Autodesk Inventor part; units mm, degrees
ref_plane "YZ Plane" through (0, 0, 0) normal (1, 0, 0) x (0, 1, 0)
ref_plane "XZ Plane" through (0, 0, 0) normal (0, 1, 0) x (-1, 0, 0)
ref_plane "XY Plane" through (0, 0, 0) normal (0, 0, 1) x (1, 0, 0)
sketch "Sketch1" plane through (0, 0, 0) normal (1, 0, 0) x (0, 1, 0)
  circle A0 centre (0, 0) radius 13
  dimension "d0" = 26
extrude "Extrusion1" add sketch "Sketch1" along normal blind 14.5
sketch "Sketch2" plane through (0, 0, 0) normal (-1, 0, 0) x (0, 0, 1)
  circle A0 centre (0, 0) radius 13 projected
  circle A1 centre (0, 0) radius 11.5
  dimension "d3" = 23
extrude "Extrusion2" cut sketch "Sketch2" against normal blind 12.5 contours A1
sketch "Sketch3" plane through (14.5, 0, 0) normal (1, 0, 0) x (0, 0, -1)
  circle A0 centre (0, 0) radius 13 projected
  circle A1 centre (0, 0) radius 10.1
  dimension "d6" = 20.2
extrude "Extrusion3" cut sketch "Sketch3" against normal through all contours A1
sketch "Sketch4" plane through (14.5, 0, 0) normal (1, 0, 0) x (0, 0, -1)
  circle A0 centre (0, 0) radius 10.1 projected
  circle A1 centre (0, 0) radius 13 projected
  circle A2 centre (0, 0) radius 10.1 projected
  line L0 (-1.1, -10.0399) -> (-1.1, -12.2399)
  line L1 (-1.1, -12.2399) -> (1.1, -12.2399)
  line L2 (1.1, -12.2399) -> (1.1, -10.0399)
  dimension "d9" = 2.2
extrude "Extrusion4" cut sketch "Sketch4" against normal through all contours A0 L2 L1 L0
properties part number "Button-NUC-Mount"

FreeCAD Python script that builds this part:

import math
import FreeCAD as App
import Part
import Sketcher

doc = App.newDocument("Part")
body = doc.addObject("PartDesign::Body", "Body")

# Sketch on YZ plane
sketch1 = doc.addObject("Sketcher::SketchObject", "Sketch")
body.addObject(sketch1)
sketch1.AttachmentSupport = (doc.YZ_Plane, [""])
sketch1.MapMode = "FlatFace"
sketch1.addGeometry(Part.Circle(App.Vector(0, 0, 0), App.Vector(0, 0, 1), 13), False)
sketch1.addConstraint([
    Sketcher.Constraint("Coincident", 0, 3, -1, 1),
    Sketcher.Constraint("Diameter", 0, 26.0),
])
pad1 = doc.addObject("PartDesign::Pad", "Pad")
body.addObject(pad1)
pad1.Profile = sketch1
pad1.Length = 14.5

# Sketch on YZ plane
sketch2 = doc.addObject("Sketcher::SketchObject", "Sketch001")
body.addObject(sketch2)
sketch2.AttachmentSupport = (doc.YZ_Plane, [""])
sketch2.MapMode = "FlatFace"
sketch2.addGeometry(Part.Circle(App.Vector(0, 0, 0), App.Vector(0, 0, 1), 12), False)
sketch2.addConstraint([
    Sketcher.Constraint("Coincident", 0, 3, -1, 1),
    Sketcher.Constraint("Diameter", 0, 23.0),
])
pocket1 = doc.addObject("PartDesign::Pocket", "Pocket")
body.addObject(pocket1)
pocket1.Profile = sketch2
pocket1.Length = 12.5
pocket1.Reversed = True

# Sketch on YZ plane
sketch3 = doc.addObject("Sketcher::SketchObject", "Sketch002")
body.addObject(sketch3)
sketch3.AttachmentSupport = (doc.YZ_Plane, [""])
sketch3.MapMode = "FlatFace"
sketch3.AttachmentOffset = App.Placement(App.Vector(0, 0, 14.5), App.Rotation())
sketch3.addGeometry(Part.Circle(App.Vector(0, 0, 0), App.Vector(0, 0, 1), 10), False)
sketch3.addConstraint([
    Sketcher.Constraint("Coincident", 0, 3, -1, 1),
    Sketcher.Constraint("Diameter", 0, 20.2),
])
pocket2 = doc.addObject("PartDesign::Pocket", "Pocket001")
body.addObject(pocket2)
pocket2.Profile = sketch3
pocket2.Type = "ThroughAll"

# Sketch on YZ plane
sketch4 = doc.addObject("Sketcher::SketchObject", "Sketch003")
body.addObject(sketch4)
sketch4.AttachmentSupport = (doc.YZ_Plane, [""])
sketch4.MapMode = "FlatFace"
sketch4.AttachmentOffset = App.Placement(App.Vector(0, 0, 14.5), App.Rotation())
sketch4.addGeometry([
    Part.ArcOfCircle(Part.Circle(App.Vector(0, 0, 0), App.Vector(0, 0, 1), 10.1), math.radians(173.75), math.radians(186.25)),
    Part.LineSegment(App.Vector(-10, 1.1, 0), App.Vector(-12.2, 1.1, 0)),
    Part.LineSegment(App.Vector(-12.2, 1.1, 0), App.Vector(-12.2, -1.1, 0)),
    Part.LineSegment(App.Vector(-12.2, -1.1, 0), App.Vector(-10, -1.1, 0)),
], False)
sketch4.addConstraint([
    Sketcher.Constraint("Coincident", 0, 1, 1, 1),
    Sketcher.Constraint("Coincident", 1, 2, 2, 1),
    Sketcher.Constraint("Coincident", 2, 2, 3, 1),
    Sketcher.Constraint("Coincident", 3, 2, 0, 2),
    Sketcher.Constraint("Horizontal", 1),
    Sketcher.Constraint("Vertical", 2),
    Sketcher.Constraint("Horizontal", 3),
    Sketcher.Constraint("Coincident", 0, 3, -1, 1),
    Sketcher.Constraint("Vertical", 0, 1, 3, 2),
    Sketcher.Constraint("Equal", 3, 2),
    Sketcher.Constraint("DistanceX", 1, 2, 1, 1, 2.2),
    Sketcher.Constraint("Radius", 0, 10.1),
])
pocket3 = doc.addObject("PartDesign::Pocket", "Pocket002")
body.addObject(pocket3)
pocket3.Profile = sketch4
pocket3.Type = "ThroughAll"

doc.recompute()
